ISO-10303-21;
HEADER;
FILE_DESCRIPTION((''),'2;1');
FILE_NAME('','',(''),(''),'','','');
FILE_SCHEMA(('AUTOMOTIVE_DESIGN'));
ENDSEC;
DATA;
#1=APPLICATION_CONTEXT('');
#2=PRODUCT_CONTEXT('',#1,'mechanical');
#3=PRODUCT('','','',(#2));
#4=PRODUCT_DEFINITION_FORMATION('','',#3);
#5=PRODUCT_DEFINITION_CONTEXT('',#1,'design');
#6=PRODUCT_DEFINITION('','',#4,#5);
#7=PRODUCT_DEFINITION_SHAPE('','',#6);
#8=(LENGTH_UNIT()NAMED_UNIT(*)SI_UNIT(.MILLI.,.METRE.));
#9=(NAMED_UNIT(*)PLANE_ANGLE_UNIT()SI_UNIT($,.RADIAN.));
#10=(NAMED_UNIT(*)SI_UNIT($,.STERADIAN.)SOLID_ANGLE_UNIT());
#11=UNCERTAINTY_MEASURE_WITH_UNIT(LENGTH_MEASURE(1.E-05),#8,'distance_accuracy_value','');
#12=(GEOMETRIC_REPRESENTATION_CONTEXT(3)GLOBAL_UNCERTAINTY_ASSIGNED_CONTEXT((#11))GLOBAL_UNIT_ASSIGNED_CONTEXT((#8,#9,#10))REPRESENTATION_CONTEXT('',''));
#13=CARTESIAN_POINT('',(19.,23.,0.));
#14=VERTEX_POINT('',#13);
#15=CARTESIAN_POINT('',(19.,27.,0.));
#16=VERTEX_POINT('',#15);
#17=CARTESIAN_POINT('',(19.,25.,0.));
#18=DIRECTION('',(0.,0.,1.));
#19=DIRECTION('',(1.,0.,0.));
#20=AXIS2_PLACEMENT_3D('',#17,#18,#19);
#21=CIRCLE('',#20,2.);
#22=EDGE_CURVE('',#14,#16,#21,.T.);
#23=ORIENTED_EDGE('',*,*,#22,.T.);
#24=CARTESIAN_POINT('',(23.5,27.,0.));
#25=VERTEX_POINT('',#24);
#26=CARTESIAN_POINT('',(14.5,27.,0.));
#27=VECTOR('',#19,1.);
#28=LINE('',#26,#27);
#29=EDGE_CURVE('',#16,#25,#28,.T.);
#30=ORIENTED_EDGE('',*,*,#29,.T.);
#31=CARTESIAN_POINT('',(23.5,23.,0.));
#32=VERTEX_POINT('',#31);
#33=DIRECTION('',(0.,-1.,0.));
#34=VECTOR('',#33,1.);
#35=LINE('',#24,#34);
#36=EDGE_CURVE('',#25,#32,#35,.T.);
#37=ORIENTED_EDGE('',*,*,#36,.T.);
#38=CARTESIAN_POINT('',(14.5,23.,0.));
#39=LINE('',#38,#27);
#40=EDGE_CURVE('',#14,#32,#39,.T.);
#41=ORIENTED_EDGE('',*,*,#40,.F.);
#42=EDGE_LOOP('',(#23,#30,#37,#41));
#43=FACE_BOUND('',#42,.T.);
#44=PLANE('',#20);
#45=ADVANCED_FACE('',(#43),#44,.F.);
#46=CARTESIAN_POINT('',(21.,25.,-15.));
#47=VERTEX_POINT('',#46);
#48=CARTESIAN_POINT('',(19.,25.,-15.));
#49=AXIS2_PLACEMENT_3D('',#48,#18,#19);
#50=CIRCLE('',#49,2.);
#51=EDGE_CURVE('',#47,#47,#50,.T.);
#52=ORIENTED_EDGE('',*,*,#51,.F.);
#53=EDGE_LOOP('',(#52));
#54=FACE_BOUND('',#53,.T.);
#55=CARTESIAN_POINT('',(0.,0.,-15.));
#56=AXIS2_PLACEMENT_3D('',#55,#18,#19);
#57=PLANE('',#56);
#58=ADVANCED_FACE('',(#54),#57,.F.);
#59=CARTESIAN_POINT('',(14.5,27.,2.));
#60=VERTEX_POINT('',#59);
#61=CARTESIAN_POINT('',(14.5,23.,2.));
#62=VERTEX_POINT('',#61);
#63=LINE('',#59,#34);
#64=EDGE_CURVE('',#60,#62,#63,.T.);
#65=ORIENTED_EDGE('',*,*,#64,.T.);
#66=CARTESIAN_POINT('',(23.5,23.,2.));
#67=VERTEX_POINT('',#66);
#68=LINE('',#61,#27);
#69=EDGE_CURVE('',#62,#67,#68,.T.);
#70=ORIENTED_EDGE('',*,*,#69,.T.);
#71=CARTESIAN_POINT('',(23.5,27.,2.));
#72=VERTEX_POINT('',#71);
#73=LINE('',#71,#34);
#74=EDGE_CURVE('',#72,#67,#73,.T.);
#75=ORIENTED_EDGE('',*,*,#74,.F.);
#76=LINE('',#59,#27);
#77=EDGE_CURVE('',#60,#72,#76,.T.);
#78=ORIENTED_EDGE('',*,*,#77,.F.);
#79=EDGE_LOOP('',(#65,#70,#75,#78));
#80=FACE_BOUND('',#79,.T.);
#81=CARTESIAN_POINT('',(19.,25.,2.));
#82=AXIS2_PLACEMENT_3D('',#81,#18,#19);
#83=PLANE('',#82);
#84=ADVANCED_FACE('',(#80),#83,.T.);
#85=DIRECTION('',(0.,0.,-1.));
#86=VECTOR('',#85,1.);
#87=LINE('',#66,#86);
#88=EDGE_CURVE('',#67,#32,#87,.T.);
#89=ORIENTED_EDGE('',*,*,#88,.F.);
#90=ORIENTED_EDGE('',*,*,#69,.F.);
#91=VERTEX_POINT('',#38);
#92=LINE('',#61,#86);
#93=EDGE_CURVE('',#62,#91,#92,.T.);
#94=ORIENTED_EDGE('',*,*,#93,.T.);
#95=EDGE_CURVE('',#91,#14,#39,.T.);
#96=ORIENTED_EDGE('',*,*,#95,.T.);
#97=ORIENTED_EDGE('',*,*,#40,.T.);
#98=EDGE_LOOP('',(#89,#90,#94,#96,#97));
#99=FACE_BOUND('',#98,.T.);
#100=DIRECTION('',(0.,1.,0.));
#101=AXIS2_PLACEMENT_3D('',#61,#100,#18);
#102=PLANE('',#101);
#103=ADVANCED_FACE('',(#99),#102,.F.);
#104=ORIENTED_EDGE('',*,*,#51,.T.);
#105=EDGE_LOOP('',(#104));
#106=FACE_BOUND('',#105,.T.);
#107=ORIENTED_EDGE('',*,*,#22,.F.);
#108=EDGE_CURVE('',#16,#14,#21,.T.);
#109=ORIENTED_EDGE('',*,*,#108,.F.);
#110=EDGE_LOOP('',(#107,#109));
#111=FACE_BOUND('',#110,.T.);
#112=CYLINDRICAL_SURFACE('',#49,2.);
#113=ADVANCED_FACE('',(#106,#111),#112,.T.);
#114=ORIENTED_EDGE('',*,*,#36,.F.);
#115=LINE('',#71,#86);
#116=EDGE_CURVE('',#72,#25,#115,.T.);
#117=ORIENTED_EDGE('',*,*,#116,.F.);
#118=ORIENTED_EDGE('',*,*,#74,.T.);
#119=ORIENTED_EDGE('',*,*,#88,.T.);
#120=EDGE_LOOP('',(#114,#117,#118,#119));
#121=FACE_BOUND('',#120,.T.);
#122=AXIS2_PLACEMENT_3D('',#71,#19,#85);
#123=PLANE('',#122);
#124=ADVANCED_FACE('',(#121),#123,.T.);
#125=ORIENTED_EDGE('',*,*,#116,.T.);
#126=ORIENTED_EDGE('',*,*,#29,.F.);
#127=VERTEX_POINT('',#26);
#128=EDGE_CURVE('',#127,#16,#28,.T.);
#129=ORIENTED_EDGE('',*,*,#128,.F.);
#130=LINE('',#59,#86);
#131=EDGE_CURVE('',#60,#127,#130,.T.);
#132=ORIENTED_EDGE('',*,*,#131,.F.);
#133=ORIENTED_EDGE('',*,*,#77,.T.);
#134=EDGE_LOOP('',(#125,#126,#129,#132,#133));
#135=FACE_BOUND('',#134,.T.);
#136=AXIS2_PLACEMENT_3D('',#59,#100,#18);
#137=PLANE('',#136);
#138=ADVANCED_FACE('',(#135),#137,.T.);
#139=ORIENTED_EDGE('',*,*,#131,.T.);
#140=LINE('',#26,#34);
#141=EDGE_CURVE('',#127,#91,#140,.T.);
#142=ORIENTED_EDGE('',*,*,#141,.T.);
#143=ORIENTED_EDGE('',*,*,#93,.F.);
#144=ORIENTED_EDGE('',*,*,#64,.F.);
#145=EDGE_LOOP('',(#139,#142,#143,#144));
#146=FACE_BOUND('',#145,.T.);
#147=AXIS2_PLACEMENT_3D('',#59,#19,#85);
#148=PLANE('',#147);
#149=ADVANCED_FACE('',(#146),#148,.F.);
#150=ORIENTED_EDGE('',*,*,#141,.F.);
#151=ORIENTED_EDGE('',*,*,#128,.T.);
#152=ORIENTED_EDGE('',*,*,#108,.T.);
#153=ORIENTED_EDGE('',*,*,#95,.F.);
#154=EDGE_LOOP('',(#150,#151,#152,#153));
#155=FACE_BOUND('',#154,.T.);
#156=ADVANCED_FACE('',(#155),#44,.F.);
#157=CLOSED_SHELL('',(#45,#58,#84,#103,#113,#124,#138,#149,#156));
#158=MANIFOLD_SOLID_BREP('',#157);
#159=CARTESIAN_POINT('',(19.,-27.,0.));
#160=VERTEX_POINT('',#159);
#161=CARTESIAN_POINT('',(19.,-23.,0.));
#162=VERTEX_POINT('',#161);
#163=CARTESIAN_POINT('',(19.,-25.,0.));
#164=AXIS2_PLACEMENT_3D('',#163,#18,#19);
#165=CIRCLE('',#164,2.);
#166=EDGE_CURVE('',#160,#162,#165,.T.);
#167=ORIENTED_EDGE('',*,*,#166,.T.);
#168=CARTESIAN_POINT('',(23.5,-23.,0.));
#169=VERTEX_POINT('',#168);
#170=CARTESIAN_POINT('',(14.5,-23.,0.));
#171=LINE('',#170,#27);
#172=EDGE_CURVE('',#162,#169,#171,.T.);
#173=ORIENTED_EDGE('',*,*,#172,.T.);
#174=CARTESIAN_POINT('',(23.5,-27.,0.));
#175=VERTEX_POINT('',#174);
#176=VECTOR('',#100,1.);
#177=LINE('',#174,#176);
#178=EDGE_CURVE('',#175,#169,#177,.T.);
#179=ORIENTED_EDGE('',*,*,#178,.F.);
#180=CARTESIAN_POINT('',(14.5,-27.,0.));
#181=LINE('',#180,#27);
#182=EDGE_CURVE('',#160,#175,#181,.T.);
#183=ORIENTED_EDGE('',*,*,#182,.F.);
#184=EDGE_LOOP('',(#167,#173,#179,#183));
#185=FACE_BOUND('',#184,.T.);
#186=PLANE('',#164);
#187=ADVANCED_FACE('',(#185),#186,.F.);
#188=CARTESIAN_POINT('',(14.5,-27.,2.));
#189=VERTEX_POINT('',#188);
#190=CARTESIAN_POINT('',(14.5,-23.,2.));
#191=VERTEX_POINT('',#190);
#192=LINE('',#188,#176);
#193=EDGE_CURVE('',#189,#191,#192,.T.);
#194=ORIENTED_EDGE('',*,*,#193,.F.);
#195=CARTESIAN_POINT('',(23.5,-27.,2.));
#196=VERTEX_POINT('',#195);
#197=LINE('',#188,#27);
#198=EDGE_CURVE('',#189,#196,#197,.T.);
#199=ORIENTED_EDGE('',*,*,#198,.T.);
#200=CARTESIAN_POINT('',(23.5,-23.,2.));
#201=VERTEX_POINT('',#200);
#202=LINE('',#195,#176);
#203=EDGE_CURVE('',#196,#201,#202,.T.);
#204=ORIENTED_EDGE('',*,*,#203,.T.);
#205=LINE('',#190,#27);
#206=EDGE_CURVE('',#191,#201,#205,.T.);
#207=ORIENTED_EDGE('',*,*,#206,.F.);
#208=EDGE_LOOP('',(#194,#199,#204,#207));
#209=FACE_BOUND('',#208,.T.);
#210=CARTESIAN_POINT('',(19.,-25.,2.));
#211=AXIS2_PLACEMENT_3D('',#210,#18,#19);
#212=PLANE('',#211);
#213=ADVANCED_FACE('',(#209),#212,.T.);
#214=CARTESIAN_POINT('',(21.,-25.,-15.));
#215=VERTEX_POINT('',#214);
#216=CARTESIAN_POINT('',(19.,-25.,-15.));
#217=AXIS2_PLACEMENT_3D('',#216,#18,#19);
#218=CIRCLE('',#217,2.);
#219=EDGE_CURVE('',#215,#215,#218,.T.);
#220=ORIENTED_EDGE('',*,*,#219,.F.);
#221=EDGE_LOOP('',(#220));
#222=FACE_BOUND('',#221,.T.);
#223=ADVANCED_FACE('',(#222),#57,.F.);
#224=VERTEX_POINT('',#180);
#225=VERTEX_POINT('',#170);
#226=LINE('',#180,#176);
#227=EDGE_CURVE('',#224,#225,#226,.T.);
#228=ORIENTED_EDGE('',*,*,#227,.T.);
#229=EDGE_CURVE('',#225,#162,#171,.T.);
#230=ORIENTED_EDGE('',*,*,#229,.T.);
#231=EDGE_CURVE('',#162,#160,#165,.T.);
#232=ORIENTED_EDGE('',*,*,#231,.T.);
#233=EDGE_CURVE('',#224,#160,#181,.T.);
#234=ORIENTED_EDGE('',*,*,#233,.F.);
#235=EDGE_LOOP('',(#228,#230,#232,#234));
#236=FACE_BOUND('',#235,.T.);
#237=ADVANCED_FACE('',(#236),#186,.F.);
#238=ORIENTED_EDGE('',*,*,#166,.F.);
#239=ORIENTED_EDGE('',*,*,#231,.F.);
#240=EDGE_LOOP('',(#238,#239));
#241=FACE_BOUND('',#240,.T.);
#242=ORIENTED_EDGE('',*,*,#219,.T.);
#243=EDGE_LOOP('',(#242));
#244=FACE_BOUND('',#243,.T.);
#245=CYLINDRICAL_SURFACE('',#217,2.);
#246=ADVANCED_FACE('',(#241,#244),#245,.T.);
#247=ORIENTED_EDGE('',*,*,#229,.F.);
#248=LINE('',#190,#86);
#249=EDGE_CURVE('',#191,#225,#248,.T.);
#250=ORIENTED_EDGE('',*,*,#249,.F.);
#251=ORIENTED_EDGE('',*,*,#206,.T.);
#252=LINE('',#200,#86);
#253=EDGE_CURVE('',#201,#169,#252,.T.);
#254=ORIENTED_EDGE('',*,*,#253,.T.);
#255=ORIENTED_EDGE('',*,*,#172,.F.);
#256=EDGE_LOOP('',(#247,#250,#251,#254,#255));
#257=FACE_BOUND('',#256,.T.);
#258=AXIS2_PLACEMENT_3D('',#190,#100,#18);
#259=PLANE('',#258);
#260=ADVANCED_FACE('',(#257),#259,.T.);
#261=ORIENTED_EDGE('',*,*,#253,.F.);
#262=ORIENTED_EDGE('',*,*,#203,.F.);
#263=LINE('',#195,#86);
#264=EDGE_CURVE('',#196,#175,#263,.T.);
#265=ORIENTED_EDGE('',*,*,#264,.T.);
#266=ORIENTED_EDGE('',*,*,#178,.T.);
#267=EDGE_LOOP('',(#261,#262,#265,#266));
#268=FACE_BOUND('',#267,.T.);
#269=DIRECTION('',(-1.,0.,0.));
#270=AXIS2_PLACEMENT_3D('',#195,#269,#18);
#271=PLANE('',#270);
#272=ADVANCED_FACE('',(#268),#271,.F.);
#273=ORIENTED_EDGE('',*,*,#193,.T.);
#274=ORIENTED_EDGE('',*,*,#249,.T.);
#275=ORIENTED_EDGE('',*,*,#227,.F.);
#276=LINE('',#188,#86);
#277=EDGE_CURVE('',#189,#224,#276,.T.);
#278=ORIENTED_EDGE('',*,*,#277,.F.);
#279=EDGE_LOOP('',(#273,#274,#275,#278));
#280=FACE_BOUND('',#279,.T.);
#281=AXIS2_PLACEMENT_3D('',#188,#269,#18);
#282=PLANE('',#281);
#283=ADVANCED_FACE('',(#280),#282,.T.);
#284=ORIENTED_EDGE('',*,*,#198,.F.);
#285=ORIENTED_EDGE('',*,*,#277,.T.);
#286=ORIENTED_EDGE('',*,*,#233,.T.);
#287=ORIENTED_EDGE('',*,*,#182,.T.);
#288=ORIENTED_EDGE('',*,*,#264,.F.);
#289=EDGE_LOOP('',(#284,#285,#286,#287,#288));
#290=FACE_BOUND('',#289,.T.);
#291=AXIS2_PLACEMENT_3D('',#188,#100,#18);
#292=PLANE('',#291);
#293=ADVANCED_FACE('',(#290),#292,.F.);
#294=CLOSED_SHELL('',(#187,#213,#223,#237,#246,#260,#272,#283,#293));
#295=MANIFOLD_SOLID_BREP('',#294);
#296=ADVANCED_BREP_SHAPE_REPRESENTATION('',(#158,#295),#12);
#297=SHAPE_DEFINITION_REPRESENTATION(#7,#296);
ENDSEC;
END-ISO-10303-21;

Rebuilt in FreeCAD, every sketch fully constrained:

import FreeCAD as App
import Part
import Sketcher

V = App.Vector
Q = App.Units.Quantity

doc = App.newDocument("Part")
params = doc.addObject("Spreadsheet::Sheet", "Params")
for row, (alias, value) in enumerate([
    ("sketch1_diameter", "4 mm"),
    ("pad1_length", "15 mm"),
    ("sketch2_diameter", "4 mm"),
    ("pad2_length", "15 mm"),
    ("sketch3_width", "9 mm"),
    ("sketch3_height", "4 mm"),
    ("pad3_length", "2 mm"),
], start=1):
    params.set(f"A{row}", alias)
    params.set(f"B{row}", "=" + value)
    params.setAlias(f"B{row}", alias)

body = doc.addObject("PartDesign::Body", "Body")

# Sketch on XY plane
sketch1 = doc.addObject("Sketcher::SketchObject", "Sketch")
body.addObject(sketch1)
sketch1.AttachmentSupport = (doc.XY_Plane, [""])
sketch1.MapMode = "FlatFace"
sketch1.addGeometry(Part.Circle(V(19, -25, 0), V(0, 0, 1), 2), False)
sketch1.addConstraint([
    Sketcher.Constraint("Diameter", 0, Q("4 mm")),
    Sketcher.Constraint("DistanceX", -1, 1, 0, 3, Q("19 mm")),
    Sketcher.Constraint("DistanceY", 0, 3, -1, 1, Q("25 mm")),
])
sketch1.setExpression("Constraints[0]", "Params.sketch1_diameter")
pad1 = doc.addObject("PartDesign::Pad", "Pad")
body.addObject(pad1)
pad1.Profile = sketch1
pad1.setExpression("Length", "Params.pad1_length")
pad1.Reversed = True
body2 = doc.addObject("PartDesign::Body", "Body001")

# Sketch on XY plane
sketch2 = doc.addObject("Sketcher::SketchObject", "Sketch001")
body2.addObject(sketch2)
sketch2.AttachmentSupport = (doc.getObject("XY_Plane001"), [""])
sketch2.MapMode = "FlatFace"
sketch2.addGeometry(Part.Circle(V(19, 25, 0), V(0, 0, 1), 2), False)
sketch2.addConstraint([
    Sketcher.Constraint("Diameter", 0, Q("4 mm")),
    Sketcher.Constraint("DistanceX", -1, 1, 0, 3, Q("19 mm")),
    Sketcher.Constraint("DistanceY", -1, 1, 0, 3, Q("25 mm")),
])
sketch2.setExpression("Constraints[0]", "Params.sketch2_diameter")
pad2 = doc.addObject("PartDesign::Pad", "Pad001")
body2.addObject(pad2)
pad2.Profile = sketch2
pad2.setExpression("Length", "Params.pad2_length")
pad2.Reversed = True
body.AllowCompound = True
doc.recompute()

boolean = doc.addObject("PartDesign::Boolean", "Boolean")
body.addObject(boolean)
boolean.Type = "Fuse"
boolean.addObjects([body2])

# Sketch on XY plane
sketch3 = doc.addObject("Sketcher::SketchObject", "Sketch002")
body.addObject(sketch3)
sketch3.AttachmentSupport = (doc.XY_Plane, [""])
sketch3.MapMode = "FlatFace"
sketch3.addGeometry([
    Part.LineSegment(V(14.5, -23, 0), V(14.5, -27, 0)),  # 0
    Part.LineSegment(V(14.5, -27, 0), V(23.5, -27, 0)),  # 1
    Part.LineSegment(V(23.5, -27, 0), V(23.5, -23, 0)),  # 2
    Part.LineSegment(V(23.5, -23, 0), V(14.5, -23, 0)),  # 3
    Part.LineSegment(V(14.5, 27, 0), V(14.5, 23, 0)),  # 4
    Part.LineSegment(V(14.5, 23, 0), V(23.5, 23, 0)),  # 5
    Part.LineSegment(V(23.5, 23, 0), V(23.5, 27, 0)),  # 6
    Part.LineSegment(V(23.5, 27, 0), V(14.5, 27, 0)),  # 7
], False)
sketch3.addConstraint([
    Sketcher.Constraint("Coincident", 0, 2, 1, 1),
    Sketcher.Constraint("Coincident", 1, 2, 2, 1),
    Sketcher.Constraint("Coincident", 2, 2, 3, 1),
    Sketcher.Constraint("Coincident", 3, 2, 0, 1),
    Sketcher.Constraint("Coincident", 4, 2, 5, 1),
    Sketcher.Constraint("Coincident", 5, 2, 6, 1),
    Sketcher.Constraint("Coincident", 6, 2, 7, 1),
    Sketcher.Constraint("Coincident", 7, 2, 4, 1),
    Sketcher.Constraint("Vertical", 0),
    Sketcher.Constraint("Horizontal", 1),
    Sketcher.Constraint("Vertical", 2),
    Sketcher.Constraint("Horizontal", 3),
    Sketcher.Constraint("Vertical", 4),
    Sketcher.Constraint("Horizontal", 5),
    Sketcher.Constraint("Vertical", 6),
    Sketcher.Constraint("Horizontal", 7),
    Sketcher.Constraint("Symmetric", 3, 2, 4, 2, -1),
    Sketcher.Constraint("Symmetric", 1, 2, 6, 2, -1),
    Sketcher.Constraint("DistanceX", 1, 1, 1, 2, Q("9 mm")),
    Sketcher.Constraint("DistanceY", 0, 2, 0, 1, Q("4 mm")),
    Sketcher.Constraint("DistanceY", 0, 2, -1, 1, Q("27 mm")),
    Sketcher.Constraint("DistanceX", -1, 1, 0, 2, Q("14.5 mm")),
])
sketch3.setExpression("Constraints[18]", "Params.sketch3_width")
sketch3.setExpression("Constraints[19]", "Params.sketch3_height")
pad3 = doc.addObject("PartDesign::Pad", "Pad002")
body.addObject(pad3)
pad3.Profile = sketch3
pad3.setExpression("Length", "Params.pad3_length")

doc.recompute()
